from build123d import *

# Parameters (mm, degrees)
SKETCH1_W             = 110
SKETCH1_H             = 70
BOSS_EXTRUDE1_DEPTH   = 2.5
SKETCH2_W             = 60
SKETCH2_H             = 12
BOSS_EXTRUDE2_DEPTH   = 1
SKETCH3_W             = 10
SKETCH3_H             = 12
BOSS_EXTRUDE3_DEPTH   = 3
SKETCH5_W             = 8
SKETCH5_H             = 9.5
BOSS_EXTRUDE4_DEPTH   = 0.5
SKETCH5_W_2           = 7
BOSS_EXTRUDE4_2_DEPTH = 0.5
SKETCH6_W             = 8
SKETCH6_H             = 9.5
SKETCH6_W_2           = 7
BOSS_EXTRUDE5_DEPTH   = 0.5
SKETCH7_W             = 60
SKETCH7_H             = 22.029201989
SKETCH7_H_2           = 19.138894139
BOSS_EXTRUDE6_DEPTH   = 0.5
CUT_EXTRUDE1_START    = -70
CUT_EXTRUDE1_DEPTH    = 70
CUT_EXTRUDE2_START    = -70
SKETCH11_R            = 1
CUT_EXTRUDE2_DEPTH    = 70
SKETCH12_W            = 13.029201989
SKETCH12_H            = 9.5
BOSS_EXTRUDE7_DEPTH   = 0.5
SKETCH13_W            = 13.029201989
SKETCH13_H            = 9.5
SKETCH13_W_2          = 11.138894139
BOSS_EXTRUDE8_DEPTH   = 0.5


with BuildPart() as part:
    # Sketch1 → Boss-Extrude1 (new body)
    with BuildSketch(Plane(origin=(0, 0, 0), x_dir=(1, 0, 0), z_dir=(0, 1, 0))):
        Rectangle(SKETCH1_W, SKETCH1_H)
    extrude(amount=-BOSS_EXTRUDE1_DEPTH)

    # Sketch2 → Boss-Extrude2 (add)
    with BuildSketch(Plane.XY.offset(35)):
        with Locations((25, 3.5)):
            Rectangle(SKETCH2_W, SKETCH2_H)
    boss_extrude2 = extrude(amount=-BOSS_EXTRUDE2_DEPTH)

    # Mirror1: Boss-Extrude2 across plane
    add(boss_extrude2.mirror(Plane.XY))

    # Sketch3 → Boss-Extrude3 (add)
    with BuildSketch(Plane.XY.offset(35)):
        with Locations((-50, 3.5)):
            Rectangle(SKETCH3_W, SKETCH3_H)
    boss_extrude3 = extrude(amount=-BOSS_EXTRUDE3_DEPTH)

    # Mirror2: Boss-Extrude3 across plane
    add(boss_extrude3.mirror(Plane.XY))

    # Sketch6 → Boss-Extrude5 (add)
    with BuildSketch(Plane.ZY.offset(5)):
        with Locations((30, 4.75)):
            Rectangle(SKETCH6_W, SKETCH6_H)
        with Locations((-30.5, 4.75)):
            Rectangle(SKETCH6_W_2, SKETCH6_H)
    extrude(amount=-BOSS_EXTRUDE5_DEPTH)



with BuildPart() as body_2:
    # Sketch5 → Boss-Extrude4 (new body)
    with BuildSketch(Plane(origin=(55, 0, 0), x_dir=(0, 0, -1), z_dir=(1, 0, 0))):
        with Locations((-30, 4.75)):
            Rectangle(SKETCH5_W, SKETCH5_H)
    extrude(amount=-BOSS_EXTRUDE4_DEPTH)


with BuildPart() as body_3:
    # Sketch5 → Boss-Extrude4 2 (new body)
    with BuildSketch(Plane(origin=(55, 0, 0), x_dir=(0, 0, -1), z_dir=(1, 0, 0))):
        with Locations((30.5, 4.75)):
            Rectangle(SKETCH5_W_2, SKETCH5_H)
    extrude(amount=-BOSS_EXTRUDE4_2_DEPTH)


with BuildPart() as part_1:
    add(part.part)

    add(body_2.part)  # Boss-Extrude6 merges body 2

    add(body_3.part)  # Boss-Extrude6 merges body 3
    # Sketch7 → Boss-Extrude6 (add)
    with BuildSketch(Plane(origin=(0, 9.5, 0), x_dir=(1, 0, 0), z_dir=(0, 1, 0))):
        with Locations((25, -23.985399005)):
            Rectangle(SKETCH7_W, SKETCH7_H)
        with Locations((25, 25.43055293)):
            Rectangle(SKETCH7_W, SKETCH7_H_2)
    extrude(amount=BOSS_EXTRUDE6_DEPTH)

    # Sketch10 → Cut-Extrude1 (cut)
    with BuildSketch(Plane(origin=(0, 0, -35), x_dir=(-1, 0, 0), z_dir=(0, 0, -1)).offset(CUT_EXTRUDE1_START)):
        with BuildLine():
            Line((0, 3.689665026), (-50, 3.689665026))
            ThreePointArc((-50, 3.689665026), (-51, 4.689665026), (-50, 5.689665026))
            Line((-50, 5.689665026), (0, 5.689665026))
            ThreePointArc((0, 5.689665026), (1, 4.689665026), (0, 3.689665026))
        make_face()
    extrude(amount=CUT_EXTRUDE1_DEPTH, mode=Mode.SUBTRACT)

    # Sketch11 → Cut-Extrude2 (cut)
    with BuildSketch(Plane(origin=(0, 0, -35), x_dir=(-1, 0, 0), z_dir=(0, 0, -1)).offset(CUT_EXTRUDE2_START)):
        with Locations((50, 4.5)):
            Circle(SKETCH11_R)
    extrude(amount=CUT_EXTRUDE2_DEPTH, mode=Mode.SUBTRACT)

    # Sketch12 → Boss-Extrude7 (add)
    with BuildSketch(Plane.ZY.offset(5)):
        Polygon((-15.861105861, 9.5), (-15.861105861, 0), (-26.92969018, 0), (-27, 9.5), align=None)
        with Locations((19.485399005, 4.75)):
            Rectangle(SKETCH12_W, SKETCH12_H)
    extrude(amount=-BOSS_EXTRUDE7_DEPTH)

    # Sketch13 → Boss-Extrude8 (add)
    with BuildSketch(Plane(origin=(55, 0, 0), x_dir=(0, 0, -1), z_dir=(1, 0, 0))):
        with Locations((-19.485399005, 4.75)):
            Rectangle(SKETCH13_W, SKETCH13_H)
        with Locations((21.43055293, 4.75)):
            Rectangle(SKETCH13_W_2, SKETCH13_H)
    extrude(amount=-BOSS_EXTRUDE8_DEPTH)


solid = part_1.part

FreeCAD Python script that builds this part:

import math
import FreeCAD as App
import Part
import Sketcher

V = App.Vector
Q = App.Units.Quantity


def add_polygon(sketch, points):
    """Adds a closed chain of lines whose ends are joined by coincident constraints."""
    first, n = sketch.GeometryCount, len(points)
    for a, b in zip(points, points[1:] + points[:1]):
        sketch.addGeometry(Part.LineSegment(App.Vector(*a, 0), App.Vector(*b, 0)), False)
    for i in range(n):
        sketch.addConstraint(Sketcher.Constraint("Coincident", first + i, 2, first + (i + 1) % n, 1))

doc = App.newDocument("Part")
params = doc.addObject("Spreadsheet::Sheet", "Params")
for row, (alias, value) in enumerate([
    ("sketch1_width", "110 mm"),
    ("sketch1_height", "70 mm"),
    ("pad1_length", "2.5 mm"),
    ("sketch2_width", "60 mm"),
    ("sketch2_height", "12 mm"),
    ("pad2_length", "1 mm"),
    ("sketch3_width", "10 mm"),
    ("sketch3_height", "12 mm"),
    ("pad3_length", "3 mm"),
    ("sketch4_height", "8 mm"),
    ("sketch4_height2", "7 mm"),
    ("sketch4_width", "9.5 mm"),
    ("pad4_length", "0.5 mm"),
    ("sketch5_height", "8 mm"),
    ("sketch5_width", "9.5 mm"),
    ("pad5_length", "0.5 mm"),
    ("sketch6_height", "7 mm"),
    ("sketch6_width", "9.5 mm"),
    ("pad6_length", "0.5 mm"),
    ("sketch7_width", "60 mm"),
    ("pad7_length", "0.5 mm"),
    ("sketch8_radius", "1 mm"),
    ("sketch8_width", "50 mm"),
    ("pocket1_length", "70 mm"),
    ("sketch9_diameter", "2 mm"),
    ("pocket2_length", "70 mm"),
    ("sketch10_width", "9.5 mm"),
    ("pad8_length", "0.5 mm"),
    ("sketch11_width", "9.5 mm"),
    ("pad9_length", "0.5 mm"),
], start=1):
    params.set(f"A{row}", alias)
    params.set(f"B{row}", "=" + value)
    params.setAlias(f"B{row}", alias)

body = doc.addObject("PartDesign::Body", "Body")

# Sketch on XZ plane
sketch1 = doc.addObject("Sketcher::SketchObject", "Sketch")
body.addObject(sketch1)
sketch1.AttachmentSupport = (doc.XZ_Plane, [""])
sketch1.MapMode = "FlatFace"
add_polygon(sketch1, [(-55, -35), (-55, 35), (55, 35), (55, -35)])  # lines 0-3
sketch1.addConstraint(Sketcher.Constraint("Vertical", 0))
sketch1.addConstraint(Sketcher.Constraint("Horizontal", 1))
sketch1.addConstraint(Sketcher.Constraint("Vertical", 2))
sketch1.addConstraint(Sketcher.Constraint("Horizontal", 3))
sketch1.addConstraint(Sketcher.Constraint("Symmetric", 0, 2, 2, 2, -1, 1))
sketch1.addConstraint(Sketcher.Constraint("DistanceX", 1, 1, 1, 2, Q("110 mm")))
sketch1.addConstraint(Sketcher.Constraint("DistanceY", 0, 1, 0, 2, Q("70 mm")))
sketch1.setExpression("Constraints[9]", "Params.sketch1_width")
sketch1.setExpression("Constraints[10]", "Params.sketch1_height")
pad1 = doc.addObject("PartDesign::Pad", "Pad")
body.addObject(pad1)
pad1.Profile = sketch1
pad1.setExpression("Length", "Params.pad1_length")

# Sketch on XY plane
sketch2 = doc.addObject("Sketcher::SketchObject", "Sketch001")
body.addObject(sketch2)
sketch2.AttachmentSupport = (doc.XY_Plane, [""])
sketch2.MapMode = "FlatFace"
sketch2.AttachmentOffset = App.Placement(V(0, 0, 35), App.Rotation())
add_polygon(sketch2, [(-5, 9.5), (-5, -2.5), (55, -2.5), (55, 9.5)])  # lines 0-3
sketch2.addConstraint(Sketcher.Constraint("Vertical", 0))
sketch2.addConstraint(Sketcher.Constraint("Horizontal", 1))
sketch2.addConstraint(Sketcher.Constraint("Vertical", 2))
sketch2.addConstraint(Sketcher.Constraint("Horizontal", 3))
sketch2.addConstraint(Sketcher.Constraint("DistanceX", 1, 1, 1, 2, Q("60 mm")))
sketch2.addConstraint(Sketcher.Constraint("DistanceY", 0, 2, 0, 1, Q("12 mm")))
sketch2.addConstraint(Sketcher.Constraint("DistanceX", 0, 2, -1, 1, Q("5 mm")))
sketch2.addConstraint(Sketcher.Constraint("DistanceY", 0, 2, -1, 1, Q("2.5 mm")))
sketch2.setExpression("Constraints[8]", "Params.sketch2_width")
sketch2.setExpression("Constraints[9]", "Params.sketch2_height")
pad2 = doc.addObject("PartDesign::Pad", "Pad001")
body.addObject(pad2)
pad2.Profile = sketch2
pad2.setExpression("Length", "Params.pad2_length")
pad2.Reversed = True
doc.recompute()

mirrored = doc.addObject("PartDesign::Mirrored", "Mirrored")
body.addObject(mirrored)
mirrored.Originals = [pad2]
mirrored.MirrorPlane = (doc.XY_Plane, [""])
body.Tip = mirrored

# Sketch on XY plane
sketch3 = doc.addObject("Sketcher::SketchObject", "Sketch002")
body.addObject(sketch3)
sketch3.AttachmentSupport = (doc.XY_Plane, [""])
sketch3.MapMode = "FlatFace"
sketch3.AttachmentOffset = App.Placement(V(0, 0, 35), App.Rotation())
add_polygon(sketch3, [(-55, 9.5), (-55, -2.5), (-45, -2.5), (-45, 9.5)])  # lines 0-3
sketch3.addConstraint(Sketcher.Constraint("Vertical", 0))
sketch3.addConstraint(Sketcher.Constraint("Horizontal", 1))
sketch3.addConstraint(Sketcher.Constraint("Vertical", 2))
sketch3.addConstraint(Sketcher.Constraint("Horizontal", 3))
sketch3.addConstraint(Sketcher.Constraint("DistanceX", 1, 1, 1, 2, Q("10 mm")))
sketch3.addConstraint(Sketcher.Constraint("DistanceY", 0, 2, 0, 1, Q("12 mm")))
sketch3.addConstraint(Sketcher.Constraint("DistanceX", 0, 2, -1, 1, Q("55 mm")))
sketch3.addConstraint(Sketcher.Constraint("DistanceY", 0, 2, -1, 1, Q("2.5 mm")))
sketch3.setExpression("Constraints[8]", "Params.sketch3_width")
sketch3.setExpression("Constraints[9]", "Params.sketch3_height")
pad3 = doc.addObject("PartDesign::Pad", "Pad002")
body.addObject(pad3)
pad3.Profile = sketch3
pad3.setExpression("Length", "Params.pad3_length")
pad3.Reversed = True
doc.recompute()

mirrored2 = doc.addObject("PartDesign::Mirrored", "Mirrored001")
body.addObject(mirrored2)
mirrored2.Originals = [pad3]
mirrored2.MirrorPlane = (doc.XY_Plane, [""])
body.Tip = mirrored2

# Sketch on YZ plane
sketch4 = doc.addObject("Sketcher::SketchObject", "Sketch003")
body.addObject(sketch4)
sketch4.AttachmentSupport = (doc.YZ_Plane, [""])
sketch4.MapMode = "FlatFace"
sketch4.AttachmentOffset = App.Placement(V(0, 0, -5), App.Rotation())
add_polygon(sketch4, [(9.5, 26), (0, 26), (0, 34), (9.5, 34)])  # lines 0-3
add_polygon(sketch4, [(9.5, -34), (0, -34), (0, -27), (9.5, -27)])  # lines 4-7
sketch4.addConstraint(Sketcher.Constraint("Horizontal", 0))
sketch4.addConstraint(Sketcher.Constraint("Vertical", 1))
sketch4.addConstraint(Sketcher.Constraint("Horizontal", 2))
sketch4.addConstraint(Sketcher.Constraint("Vertical", 3))
sketch4.addConstraint(Sketcher.Constraint("Horizontal", 4))
sketch4.addConstraint(Sketcher.Constraint("Vertical", 5))
sketch4.addConstraint(Sketcher.Constraint("Horizontal", 6))
sketch4.addConstraint(Sketcher.Constraint("Vertical", 7))
sketch4.addConstraint(Sketcher.Constraint("Symmetric", 1, 2, 4, 2, -1, 1))
sketch4.addConstraint(Sketcher.Constraint("PointOnObject", 0, 2, -2))
sketch4.addConstraint(Sketcher.Constraint("Vertical", 3, 2, 6, 2))
sketch4.addConstraint(Sketcher.Constraint("DistanceY", 1, 1, 1, 2, Q("8 mm")))
sketch4.addConstraint(Sketcher.Constraint("DistanceY", 5, 1, 5, 2, Q("7 mm")))
sketch4.addConstraint(Sketcher.Constraint("DistanceX", 0, 2, 0, 1, Q("9.5 mm")))
sketch4.addConstraint(Sketcher.Constraint("DistanceY", -1, 1, 0, 2, Q("26 mm")))
sketch4.setExpression("Constraints[19]", "Params.sketch4_height")
sketch4.setExpression("Constraints[20]", "Params.sketch4_height2")
sketch4.setExpression("Constraints[21]", "Params.sketch4_width")
pad4 = doc.addObject("PartDesign::Pad", "Pad003")
body.addObject(pad4)
pad4.Profile = sketch4
pad4.setExpression("Length", "Params.pad4_length")
body2 = doc.addObject("PartDesign::Body", "Body001")

# Sketch on YZ plane
sketch5 = doc.addObject("Sketcher::SketchObject", "Sketch004")
body2.addObject(sketch5)
sketch5.AttachmentSupport = (doc.getObject("YZ_Plane001"), [""])
sketch5.MapMode = "FlatFace"
sketch5.AttachmentOffset = App.Placement(V(0, 0, 55), App.Rotation())
add_polygon(sketch5, [(9.5, 34), (0, 34), (0, 26), (9.5, 26)])  # lines 0-3
sketch5.addConstraint(Sketcher.Constraint("Horizontal", 0))
sketch5.addConstraint(Sketcher.Constraint("Vertical", 1))
sketch5.addConstraint(Sketcher.Constraint("Horizontal", 2))
sketch5.addConstraint(Sketcher.Constraint("Vertical", 3))
sketch5.addConstraint(Sketcher.Constraint("PointOnObject", 0, 2, -2))
sketch5.addConstraint(Sketcher.Constraint("DistanceY", 1, 2, 1, 1, Q("8 mm")))
sketch5.addConstraint(Sketcher.Constraint("DistanceX", 0, 2, 0, 1, Q("9.5 mm")))
sketch5.addConstraint(Sketcher.Constraint("DistanceY", -1, 1, 0, 2, Q("34 mm")))
sketch5.setExpression("Constraints[9]", "Params.sketch5_height")
sketch5.setExpression("Constraints[10]", "Params.sketch5_width")
pad5 = doc.addObject("PartDesign::Pad", "Pad004")
body2.addObject(pad5)
pad5.Profile = sketch5
pad5.setExpression("Length", "Params.pad5_length")
pad5.Reversed = True
body3 = doc.addObject("PartDesign::Body", "Body002")

# Sketch on YZ plane
sketch6 = doc.addObject("Sketcher::SketchObject", "Sketch005")
body3.addObject(sketch6)
sketch6.AttachmentSupport = (doc.getObject("YZ_Plane002"), [""])
sketch6.MapMode = "FlatFace"
sketch6.AttachmentOffset = App.Placement(V(0, 0, 55), App.Rotation())
add_polygon(sketch6, [(9.5, -27), (0, -27), (0, -34), (9.5, -34)])  # lines 0-3
sketch6.addConstraint(Sketcher.Constraint("Horizontal", 0))
sketch6.addConstraint(Sketcher.Constraint("Vertical", 1))
sketch6.addConstraint(Sketcher.Constraint("Horizontal", 2))
sketch6.addConstraint(Sketcher.Constraint("Vertical", 3))
sketch6.addConstraint(Sketcher.Constraint("PointOnObject", 0, 2, -2))
sketch6.addConstraint(Sketcher.Constraint("DistanceY", 1, 2, 1, 1, Q("7 mm")))
sketch6.addConstraint(Sketcher.Constraint("DistanceX", 0, 2, 0, 1, Q("9.5 mm")))
sketch6.addConstraint(Sketcher.Constraint("DistanceY", 0, 2, -1, 1, Q("27 mm")))
sketch6.setExpression("Constraints[9]", "Params.sketch6_height")
sketch6.setExpression("Constraints[10]", "Params.sketch6_width")
pad6 = doc.addObject("PartDesign::Pad", "Pad005")
body3.addObject(pad6)
pad6.Profile = sketch6
pad6.setExpression("Length", "Params.pad6_length")
pad6.Reversed = True
doc.recompute()

boolean = doc.addObject("PartDesign::Boolean", "Boolean")
body.addObject(boolean)
boolean.Type = "Fuse"
boolean.addObjects([body2])
doc.recompute()

boolean2 = doc.addObject("PartDesign::Boolean", "Boolean001")
body.addObject(boolean2)
boolean2.Type = "Fuse"
boolean2.addObjects([body3])

# Sketch on XZ plane
sketch7 = doc.addObject("Sketcher::SketchObject", "Sketch006")
body.addObject(sketch7)
sketch7.AttachmentSupport = (doc.XZ_Plane, [""])
sketch7.MapMode = "FlatFace"
sketch7.AttachmentOffset = App.Placement(V(0, 0, -9.5), App.Rotation())
add_polygon(sketch7, [(-5, 12.970798), (-5, 35), (55, 35), (55, 12.970798)])  # lines 0-3
add_polygon(sketch7, [(-5, -35), (-5, -15.861106), (55, -15.861106), (55, -35)])  # lines 4-7
sketch7.addConstraint(Sketcher.Constraint("Vertical", 0))
sketch7.addConstraint(Sketcher.Constraint("Horizontal", 1))
sketch7.addConstraint(Sketcher.Constraint("Vertical", 2))
sketch7.addConstraint(Sketcher.Constraint("Horizontal", 3))
sketch7.addConstraint(Sketcher.Constraint("Vertical", 4))
sketch7.addConstraint(Sketcher.Constraint("Horizontal", 5))
sketch7.addConstraint(Sketcher.Constraint("Vertical", 6))
sketch7.addConstraint(Sketcher.Constraint("Horizontal", 7))
sketch7.addConstraint(Sketcher.Constraint("Symmetric", 1, 2, 6, 2, -1))
sketch7.addConstraint(Sketcher.Constraint("Vertical", 3, 2, 4, 2))
sketch7.addConstraint(Sketcher.Constraint("DistanceX", 1, 1, 1, 2, Q("60 mm")))
sketch7.addConstraint(Sketcher.Constraint("DistanceX", 0, 2, -1, 1, Q("5 mm")))
sketch7.addConstraint(Sketcher.Constraint("DistanceY", -1, 1, 0, 2, Q("35 mm")))
sketch7.addConstraint(Sketcher.Constraint("DistanceY", 0, 1, 0, 2, Q("22.029202 mm")))
sketch7.addConstraint(Sketcher.Constraint("DistanceY", 4, 1, 4, 2, Q("19.138894 mm")))
sketch7.setExpression("Constraints[18]", "Params.sketch7_width")
pad7 = doc.addObject("PartDesign::Pad", "Pad006")
body.addObject(pad7)
pad7.Profile = sketch7
pad7.setExpression("Length", "Params.pad7_length")
pad7.Reversed = True

# Sketch on XY plane
sketch8 = doc.addObject("Sketcher::SketchObject", "Sketch007")
body.addObject(sketch8)
sketch8.AttachmentSupport = (doc.XY_Plane, [""])
sketch8.MapMode = "FlatFace"
sketch8.AttachmentOffset = App.Placement(V(0, 0, 35), App.Rotation())
sketch8.addGeometry(Part.LineSegment(V(50, 3.689665, 0), V(0, 3.689665, 0)), False)
sketch8.addGeometry(Part.ArcOfCircle(Part.Circle(V(0, 4.689665, 0), V(0, 0, 1), 1), math.radians(90), math.radians(270)), False)
sketch8.addGeometry(Part.LineSegment(V(0, 5.689665, 0), V(50, 5.689665, 0)), False)
sketch8.addGeometry(Part.ArcOfCircle(Part.Circle(V(50, 4.689665, 0), V(0, 0, 1), 1), math.radians(-90), math.radians(90)), False)
sketch8.addConstraint(Sketcher.Constraint("Tangent", 0, 2, 1, 2))
sketch8.addConstraint(Sketcher.Constraint("Tangent", 1, 1, 2, 1))
sketch8.addConstraint(Sketcher.Constraint("Tangent", 2, 2, 3, 2))
sketch8.addConstraint(Sketcher.Constraint("Tangent", 3, 1, 0, 1))
sketch8.addConstraint(Sketcher.Constraint("Horizontal", 0))
sketch8.addConstraint(Sketcher.Constraint("Horizontal", 2))
sketch8.addConstraint(Sketcher.Constraint("PointOnObject", 1, 3, -2))
sketch8.addConstraint(Sketcher.Constraint("Radius", 1, Q("1 mm")))
sketch8.addConstraint(Sketcher.Constraint("DistanceX", 0, 2, 0, 1, Q("50 mm")))
sketch8.addConstraint(Sketcher.Constraint("DistanceY", -1, 1, 1, 3, Q("4.689665 mm")))
sketch8.setExpression("Constraints[7]", "Params.sketch8_radius")
sketch8.setExpression("Constraints[8]", "Params.sketch8_width")
pocket1 = doc.addObject("PartDesign::Pocket", "Pocket")
body.addObject(pocket1)
pocket1.Profile = sketch8
pocket1.setExpression("Length", "Params.pocket1_length")

# Sketch on XY plane
sketch9 = doc.addObject("Sketcher::SketchObject", "Sketch008")
body.addObject(sketch9)
sketch9.AttachmentSupport = (doc.XY_Plane, [""])
sketch9.MapMode = "FlatFace"
sketch9.AttachmentOffset = App.Placement(V(0, 0, 35), App.Rotation())
sketch9.addGeometry(Part.Circle(V(-50, 4.5, 0), V(0, 0, 1), 1), False)
sketch9.addConstraint(Sketcher.Constraint("Diameter", 0, Q("2 mm")))
sketch9.addConstraint(Sketcher.Constraint("DistanceX", 0, 3, -1, 1, Q("50 mm")))
sketch9.addConstraint(Sketcher.Constraint("DistanceY", -1, 1, 0, 3, Q("4.5 mm")))
sketch9.setExpression("Constraints[0]", "Params.sketch9_diameter")
pocket2 = doc.addObject("PartDesign::Pocket", "Pocket001")
body.addObject(pocket2)
pocket2.Profile = sketch9
pocket2.setExpression("Length", "Params.pocket2_length")

# Sketch on YZ plane
sketch10 = doc.addObject("Sketcher::SketchObject", "Sketch009")
body.addObject(sketch10)
sketch10.AttachmentSupport = (doc.YZ_Plane, [""])
sketch10.MapMode = "FlatFace"
sketch10.AttachmentOffset = App.Placement(V(0, 0, -5), App.Rotation())
add_polygon(sketch10, [(0, -15.861106), (9.5, -15.861106), (9.5, -27), (0, -26.92969)])  # lines 0-3
add_polygon(sketch10, [(9.5, 12.970798), (0, 12.970798), (0, 26), (9.5, 26)])  # lines 4-7
sketch10.addConstraint(Sketcher.Constraint("Horizontal", 0))
sketch10.addConstraint(Sketcher.Constraint("Vertical", 1))
sketch10.addConstraint(Sketcher.Constraint("Vertical", 3))
sketch10.addConstraint(Sketcher.Constraint("Horizontal", 4))
sketch10.addConstraint(Sketcher.Constraint("Vertical", 5))
sketch10.addConstraint(Sketcher.Constraint("Horizontal", 6))
sketch10.addConstraint(Sketcher.Constraint("Vertical", 7))
sketch10.addConstraint(Sketcher.Constraint("PointOnObject", 2, 2, -2))
sketch10.addConstraint(Sketcher.Constraint("PointOnObject", 4, 2, -2))
sketch10.addConstraint(Sketcher.Constraint("Vertical", 1, 2, 6, 2))
sketch10.addConstraint(Sketcher.Constraint("DistanceX", 0, 1, 0, 2, Q("9.5 mm")))
sketch10.addConstraint(Sketcher.Constraint("DistanceY", 1, 2, -1, 1, Q("27 mm")))
sketch10.addConstraint(Sketcher.Constraint("DistanceY", -1, 1, 5, 2, Q("26 mm")))
sketch10.addConstraint(Sketcher.Constraint("DistanceY", 5, 1, 5, 2, Q("13.029202 mm")))
sketch10.addConstraint(Sketcher.Constraint("Distance", 2, Q("9.50026 mm")))
sketch10.addConstraint(Sketcher.Constraint("DistanceY", 1, 2, 1, 1, Q("11.138894 mm")))
sketch10.setExpression("Constraints[18]", "Params.sketch10_width")
pad8 = doc.addObject("PartDesign::Pad", "Pad007")
body.addObject(pad8)
pad8.Profile = sketch10
pad8.setExpression("Length", "Params.pad8_length")

# Sketch on YZ plane
sketch11 = doc.addObject("Sketcher::SketchObject", "Sketch010")
body.addObject(sketch11)
sketch11.AttachmentSupport = (doc.YZ_Plane, [""])
sketch11.MapMode = "FlatFace"
sketch11.AttachmentOffset = App.Placement(V(0, 0, 55), App.Rotation())
add_polygon(sketch11, [(9.5, 26), (0, 26), (0, 12.970798), (9.5, 12.970798)])  # lines 0-3
add_polygon(sketch11, [(9.5, -15.861106), (0, -15.861106), (0, -27), (9.5, -27)])  # lines 4-7
sketch11.addConstraint(Sketcher.Constraint("Horizontal", 0))
sketch11.addConstraint(Sketcher.Constraint("Vertical", 1))
sketch11.addConstraint(Sketcher.Constraint("Horizontal", 2))
sketch11.addConstraint(Sketcher.Constraint("Vertical", 3))
sketch11.addConstraint(Sketcher.Constraint("Horizontal", 4))
sketch11.addConstraint(Sketcher.Constraint("Vertical", 5))
sketch11.addConstraint(Sketcher.Constraint("Horizontal", 6))
sketch11.addConstraint(Sketcher.Constraint("Vertical", 7))
sketch11.addConstraint(Sketcher.Constraint("PointOnObject", 0, 2, -2))
sketch11.addConstraint(Sketcher.Constraint("PointOnObject", 4, 2, -2))
sketch11.addConstraint(Sketcher.Constraint("Vertical", 3, 2, 6, 2))
sketch11.addConstraint(Sketcher.Constraint("DistanceX", 0, 2, 0, 1, Q("9.5 mm")))
sketch11.addConstraint(Sketcher.Constraint("DistanceY", -1, 1, 0, 2, Q("26 mm")))
sketch11.addConstraint(Sketcher.Constraint("DistanceY", 5, 2, -1, 1, Q("27 mm")))
sketch11.addConstraint(Sketcher.Constraint("DistanceY", 1, 2, 1, 1, Q("13.029202 mm")))
sketch11.addConstraint(Sketcher.Constraint("DistanceY", 5, 2, 5, 1, Q("11.138894 mm")))
sketch11.setExpression("Constraints[19]", "Params.sketch11_width")
pad9 = doc.addObject("PartDesign::Pad", "Pad008")
body.addObject(pad9)
pad9.Profile = sketch11
pad9.setExpression("Length", "Params.pad9_length")
pad9.Reversed = True

doc.recompute()
